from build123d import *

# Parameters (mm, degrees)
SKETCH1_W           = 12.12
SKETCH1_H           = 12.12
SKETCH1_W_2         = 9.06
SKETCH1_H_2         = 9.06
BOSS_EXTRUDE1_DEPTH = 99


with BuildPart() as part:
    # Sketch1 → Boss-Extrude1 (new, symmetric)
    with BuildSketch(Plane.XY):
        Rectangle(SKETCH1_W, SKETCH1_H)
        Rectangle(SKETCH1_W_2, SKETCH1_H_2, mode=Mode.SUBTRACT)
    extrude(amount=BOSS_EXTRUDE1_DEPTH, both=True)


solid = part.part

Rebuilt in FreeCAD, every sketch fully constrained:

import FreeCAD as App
import Part
import Sketcher

V = App.Vector

doc = App.newDocument("Part")
body = doc.addObject("PartDesign::Body", "Body")

# Sketch on XY plane
sketch1 = body.newObject("Sketcher::SketchObject", "Sketch")
sketch1.AttachmentSupport = (doc.getObject("XY_Plane"), [""])
sketch1.MapMode = "FlatFace"
sketch1.addGeometry([
    Part.LineSegment(V(-6, 6, 0), V(-6, -6, 0)),  # 0
    Part.LineSegment(V(-6, -6, 0), V(6, -6, 0)),  # 1
    Part.LineSegment(V(6, -6, 0), V(6, 6, 0)),  # 2
    Part.LineSegment(V(6, 6, 0), V(-6, 6, 0)),  # 3
    Part.LineSegment(V(5, -5, 0), V(-5, -5, 0)),  # 4
    Part.LineSegment(V(-5, -5, 0), V(-5, 5, 0)),  # 5
    Part.LineSegment(V(-5, 5, 0), V(5, 5, 0)),  # 6
    Part.LineSegment(V(5, 5, 0), V(5, -5, 0)),  # 7
], False)
sketch1.addConstraint([
    Sketcher.Constraint("Coincident", 0, 2, 1, 1),
    Sketcher.Constraint("Coincident", 1, 2, 2, 1),
    Sketcher.Constraint("Coincident", 2, 2, 3, 1),
    Sketcher.Constraint("Coincident", 3, 2, 0, 1),
    Sketcher.Constraint("Coincident", 4, 2, 5, 1),
    Sketcher.Constraint("Coincident", 5, 2, 6, 1),
    Sketcher.Constraint("Coincident", 6, 2, 7, 1),
    Sketcher.Constraint("Coincident", 7, 2, 4, 1),
    Sketcher.Constraint("Vertical", 0),
    Sketcher.Constraint("Horizontal", 1),
    Sketcher.Constraint("Vertical", 2),
    Sketcher.Constraint("Horizontal", 3),
    Sketcher.Constraint("Horizontal", 4),
    Sketcher.Constraint("Vertical", 5),
    Sketcher.Constraint("Horizontal", 6),
    Sketcher.Constraint("Vertical", 7),
    Sketcher.Constraint("Symmetric", 0, 2, 2, 2, -1, 1),
    Sketcher.Constraint("Symmetric", 4, 2, 6, 2, -1, 1),
    Sketcher.Constraint("Equal", 3, 0),
    Sketcher.Constraint("Equal", 6, 5),
    Sketcher.Constraint("DistanceX", 1, 1, 1, 2, 12.12),
    Sketcher.Constraint("DistanceX", 4, 2, 4, 1, 9.06),
])
pad1 = body.newObject("PartDesign::Pad", "Pad")
pad1.Profile = sketch1
pad1.Length = 198
pad1.Midplane = True

doc.recompute()
